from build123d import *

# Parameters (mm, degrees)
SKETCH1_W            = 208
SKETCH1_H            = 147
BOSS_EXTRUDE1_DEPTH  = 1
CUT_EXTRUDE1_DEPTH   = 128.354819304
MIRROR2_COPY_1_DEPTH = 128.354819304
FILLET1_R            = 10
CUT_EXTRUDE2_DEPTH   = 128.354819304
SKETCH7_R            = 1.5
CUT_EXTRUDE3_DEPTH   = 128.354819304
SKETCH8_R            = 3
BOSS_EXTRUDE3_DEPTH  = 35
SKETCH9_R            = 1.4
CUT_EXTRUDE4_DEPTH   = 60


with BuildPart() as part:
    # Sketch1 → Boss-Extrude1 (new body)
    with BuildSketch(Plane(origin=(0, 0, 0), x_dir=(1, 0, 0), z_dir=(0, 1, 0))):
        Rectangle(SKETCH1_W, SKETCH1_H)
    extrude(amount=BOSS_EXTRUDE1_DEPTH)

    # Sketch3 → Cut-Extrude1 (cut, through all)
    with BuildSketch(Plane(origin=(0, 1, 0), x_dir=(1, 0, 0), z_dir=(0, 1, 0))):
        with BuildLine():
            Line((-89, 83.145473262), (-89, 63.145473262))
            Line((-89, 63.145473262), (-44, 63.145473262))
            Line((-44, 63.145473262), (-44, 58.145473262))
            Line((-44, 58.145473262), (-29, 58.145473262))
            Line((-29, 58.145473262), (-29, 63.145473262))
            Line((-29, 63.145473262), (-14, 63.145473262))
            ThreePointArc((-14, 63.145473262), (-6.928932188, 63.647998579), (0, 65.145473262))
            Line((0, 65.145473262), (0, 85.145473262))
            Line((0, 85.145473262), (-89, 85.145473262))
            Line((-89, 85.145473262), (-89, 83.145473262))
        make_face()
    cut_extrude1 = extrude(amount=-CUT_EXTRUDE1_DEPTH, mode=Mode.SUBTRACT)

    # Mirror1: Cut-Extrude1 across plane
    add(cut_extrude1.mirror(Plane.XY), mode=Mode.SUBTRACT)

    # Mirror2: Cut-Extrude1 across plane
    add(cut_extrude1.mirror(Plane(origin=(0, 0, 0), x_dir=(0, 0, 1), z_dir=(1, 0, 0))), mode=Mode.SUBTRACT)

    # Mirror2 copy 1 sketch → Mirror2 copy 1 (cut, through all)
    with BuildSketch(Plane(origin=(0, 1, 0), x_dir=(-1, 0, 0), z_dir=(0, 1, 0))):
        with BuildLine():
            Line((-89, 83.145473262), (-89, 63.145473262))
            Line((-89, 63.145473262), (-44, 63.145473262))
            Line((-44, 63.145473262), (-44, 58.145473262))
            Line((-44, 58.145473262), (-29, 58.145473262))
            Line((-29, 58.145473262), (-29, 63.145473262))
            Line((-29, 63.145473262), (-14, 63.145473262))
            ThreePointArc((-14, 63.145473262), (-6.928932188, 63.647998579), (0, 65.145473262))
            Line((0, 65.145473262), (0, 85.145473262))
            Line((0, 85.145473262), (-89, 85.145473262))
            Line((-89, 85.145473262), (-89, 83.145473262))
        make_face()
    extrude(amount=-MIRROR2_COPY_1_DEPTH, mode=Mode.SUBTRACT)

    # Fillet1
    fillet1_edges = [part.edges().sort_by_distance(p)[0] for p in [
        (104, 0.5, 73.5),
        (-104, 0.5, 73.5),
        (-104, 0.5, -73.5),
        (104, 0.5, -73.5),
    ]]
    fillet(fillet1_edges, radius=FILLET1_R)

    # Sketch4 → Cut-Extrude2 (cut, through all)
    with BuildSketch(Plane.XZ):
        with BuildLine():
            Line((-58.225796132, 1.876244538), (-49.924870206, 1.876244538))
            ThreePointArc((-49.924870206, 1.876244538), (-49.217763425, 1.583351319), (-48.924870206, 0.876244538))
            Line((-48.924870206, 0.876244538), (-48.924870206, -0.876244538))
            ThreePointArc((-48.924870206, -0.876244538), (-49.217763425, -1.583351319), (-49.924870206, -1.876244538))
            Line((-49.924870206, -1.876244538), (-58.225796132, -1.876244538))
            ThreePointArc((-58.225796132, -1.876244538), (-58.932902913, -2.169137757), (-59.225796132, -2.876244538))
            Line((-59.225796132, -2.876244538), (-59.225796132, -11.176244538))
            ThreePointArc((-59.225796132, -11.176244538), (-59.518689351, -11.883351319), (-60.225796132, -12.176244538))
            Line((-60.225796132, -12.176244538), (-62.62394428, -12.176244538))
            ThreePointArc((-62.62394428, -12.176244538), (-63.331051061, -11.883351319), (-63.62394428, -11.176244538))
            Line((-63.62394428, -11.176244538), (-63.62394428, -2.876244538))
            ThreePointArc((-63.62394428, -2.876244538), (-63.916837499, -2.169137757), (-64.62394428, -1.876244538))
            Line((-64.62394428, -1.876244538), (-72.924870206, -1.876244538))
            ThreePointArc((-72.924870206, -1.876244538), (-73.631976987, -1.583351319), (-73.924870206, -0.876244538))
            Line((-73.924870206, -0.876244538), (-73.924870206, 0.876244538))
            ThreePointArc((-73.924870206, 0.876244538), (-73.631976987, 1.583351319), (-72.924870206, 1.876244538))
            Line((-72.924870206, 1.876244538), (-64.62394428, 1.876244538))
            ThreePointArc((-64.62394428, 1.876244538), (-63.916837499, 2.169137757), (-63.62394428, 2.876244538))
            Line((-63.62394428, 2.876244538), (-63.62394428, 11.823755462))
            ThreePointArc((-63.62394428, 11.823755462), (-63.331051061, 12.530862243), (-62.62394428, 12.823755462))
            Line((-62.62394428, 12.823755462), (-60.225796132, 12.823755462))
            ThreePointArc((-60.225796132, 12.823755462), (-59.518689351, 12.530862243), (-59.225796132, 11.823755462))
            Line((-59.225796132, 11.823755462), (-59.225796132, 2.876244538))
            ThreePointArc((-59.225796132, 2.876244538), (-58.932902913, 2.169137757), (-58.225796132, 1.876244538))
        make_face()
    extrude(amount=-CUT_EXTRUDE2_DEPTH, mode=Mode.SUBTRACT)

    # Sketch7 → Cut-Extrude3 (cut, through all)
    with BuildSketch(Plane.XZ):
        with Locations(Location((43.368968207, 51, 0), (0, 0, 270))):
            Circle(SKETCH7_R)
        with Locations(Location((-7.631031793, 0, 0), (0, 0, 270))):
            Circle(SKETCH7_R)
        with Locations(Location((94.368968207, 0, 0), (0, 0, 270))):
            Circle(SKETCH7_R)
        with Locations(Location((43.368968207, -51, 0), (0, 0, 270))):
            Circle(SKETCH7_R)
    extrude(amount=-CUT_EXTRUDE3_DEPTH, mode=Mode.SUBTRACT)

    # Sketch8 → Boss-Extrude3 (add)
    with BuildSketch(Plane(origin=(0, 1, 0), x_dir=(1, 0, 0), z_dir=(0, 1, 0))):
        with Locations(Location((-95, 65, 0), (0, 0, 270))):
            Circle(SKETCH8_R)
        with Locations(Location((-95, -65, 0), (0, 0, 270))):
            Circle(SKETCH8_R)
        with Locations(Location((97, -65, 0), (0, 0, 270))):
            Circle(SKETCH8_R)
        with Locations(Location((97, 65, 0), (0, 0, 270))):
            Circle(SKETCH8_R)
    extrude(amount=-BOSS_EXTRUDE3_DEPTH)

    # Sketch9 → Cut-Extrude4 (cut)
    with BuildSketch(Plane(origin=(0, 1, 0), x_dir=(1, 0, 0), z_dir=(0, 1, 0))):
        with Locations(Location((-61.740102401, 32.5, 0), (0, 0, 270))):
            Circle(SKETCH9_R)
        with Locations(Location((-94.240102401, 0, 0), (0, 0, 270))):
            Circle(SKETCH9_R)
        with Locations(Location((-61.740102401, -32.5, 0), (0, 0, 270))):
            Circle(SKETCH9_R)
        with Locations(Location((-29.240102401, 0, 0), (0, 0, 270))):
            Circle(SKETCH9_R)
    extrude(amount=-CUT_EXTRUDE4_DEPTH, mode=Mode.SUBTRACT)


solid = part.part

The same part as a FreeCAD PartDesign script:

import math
import FreeCAD as App
import Part
import Sketcher
from FreeCAD import Vector
Q = App.Units.Quantity


def edges_at(feature, points):
    """Names of the edges that pass closest to the given points."""
    edges = feature.Shape.Edges
    near = lambda p: min(range(len(edges)), key=lambda i: edges[i].distToShape(Part.Vertex(*p))[0])
    return sorted({f"Edge{near(p) + 1}" for p in points})


def add_polygon(sketch, points):
    """Adds a closed chain of lines whose ends are joined by coincident constraints."""
    first, n = sketch.GeometryCount, len(points)
    for a, b in zip(points, points[1:] + points[:1]):
        sketch.addGeometry(Part.LineSegment(App.Vector(*a, 0), App.Vector(*b, 0)), False)
    for i in range(n):
        sketch.addConstraint(Sketcher.Constraint("Coincident", first + i, 2, first + (i + 1) % n, 1))

doc = App.newDocument("Part")
body = doc.addObject("PartDesign::Body", "Body")

# Sketch on XZ plane
sketch1 = doc.addObject("Sketcher::SketchObject", "Sketch")
body.addObject(sketch1)
sketch1.AttachmentSupport = (doc.XZ_Plane, [""])
sketch1.MapMode = "FlatFace"
add_polygon(sketch1, [(-104, -74), (-104, 74), (104, 74), (104, -74)])  # lines 0-3
sketch1.addConstraint(Sketcher.Constraint("Vertical", 0))
sketch1.addConstraint(Sketcher.Constraint("Horizontal", 1))
sketch1.addConstraint(Sketcher.Constraint("Vertical", 2))
sketch1.addConstraint(Sketcher.Constraint("Horizontal", 3))
sketch1.addConstraint(Sketcher.Constraint("Symmetric", 0, 2, 2, 2, -1, 1))
sketch1.addConstraint(Sketcher.Constraint("DistanceX", 1, 1, 1, 2, Q("208 mm")))
sketch1.addConstraint(Sketcher.Constraint("DistanceY", 0, 1, 0, 2, Q("147 mm")))
pad1 = doc.addObject("PartDesign::Pad", "Pad")
body.addObject(pad1)
pad1.Profile = sketch1
pad1.Length = 1
pad1.Reversed = True

# Sketch on XZ plane
sketch2 = doc.addObject("Sketcher::SketchObject", "Sketch001")
body.addObject(sketch2)
sketch2.AttachmentSupport = (doc.XZ_Plane, [""])
sketch2.MapMode = "FlatFace"
sketch2.AttachmentOffset = App.Placement(Vector(0, 0, -1), App.Rotation())
sketch2.addGeometry(Part.LineSegment(Vector(-89, -63, 0), Vector(-44, -63, 0)), False)
sketch2.addGeometry(Part.LineSegment(Vector(-44, -63, 0), Vector(-44, -58, 0)), False)
sketch2.addGeometry(Part.LineSegment(Vector(-44, -58, 0), Vector(-29, -58, 0)), False)
sketch2.addGeometry(Part.LineSegment(Vector(-29, -58, 0), Vector(-29, -63, 0)), False)
sketch2.addGeometry(Part.LineSegment(Vector(-29, -63, 0), Vector(-14, -63, 0)), False)
sketch2.addGeometry(Part.ArcOfCircle(Part.Circle(Vector(-14, -113, 0), Vector(0, 0, 1), 50), math.radians(73.74), math.radians(90)), False)
sketch2.addGeometry(Part.LineSegment(Vector(0, -65, 0), Vector(0, -85, 0)), False)
sketch2.addGeometry(Part.LineSegment(Vector(0, -85, 0), Vector(-89, -85, 0)), False)
sketch2.addGeometry(Part.LineSegment(Vector(-89, -85, 0), Vector(-89, -63, 0)), False)
sketch2.addConstraint(Sketcher.Constraint("Coincident", 0, 2, 1, 1))
sketch2.addConstraint(Sketcher.Constraint("Coincident", 1, 2, 2, 1))
sketch2.addConstraint(Sketcher.Constraint("Coincident", 2, 2, 3, 1))
sketch2.addConstraint(Sketcher.Constraint("Coincident", 3, 2, 4, 1))
sketch2.addConstraint(Sketcher.Constraint("Tangent", 4, 2, 5, 2))
sketch2.addConstraint(Sketcher.Constraint("Coincident", 5, 1, 6, 1))
sketch2.addConstraint(Sketcher.Constraint("Coincident", 6, 2, 7, 1))
sketch2.addConstraint(Sketcher.Constraint("Coincident", 7, 2, 8, 1))
sketch2.addConstraint(Sketcher.Constraint("Coincident", 8, 2, 0, 1))
sketch2.addConstraint(Sketcher.Constraint("Horizontal", 0))
sketch2.addConstraint(Sketcher.Constraint("Vertical", 1))
sketch2.addConstraint(Sketcher.Constraint("Horizontal", 2))
sketch2.addConstraint(Sketcher.Constraint("Vertical", 3))
sketch2.addConstraint(Sketcher.Constraint("Horizontal", 4))
sketch2.addConstraint(Sketcher.Constraint("Vertical", 6))
sketch2.addConstraint(Sketcher.Constraint("Horizontal", 7))
sketch2.addConstraint(Sketcher.Constraint("Vertical", 8))
sketch2.addConstraint(Sketcher.Constraint("PointOnObject", 5, 1, -2))
sketch2.addConstraint(Sketcher.Constraint("Horizontal", 0, 2, 3, 2))
sketch2.addConstraint(Sketcher.Constraint("Equal", 2, 4))
sketch2.addConstraint(Sketcher.Constraint("Radius", 5, Q("50 mm")))
sketch2.addConstraint(Sketcher.Constraint("DistanceX", 0, 1, 0, 2, Q("45 mm")))
sketch2.addConstraint(Sketcher.Constraint("DistanceX", 2, 1, 2, 2, Q("15 mm")))
sketch2.addConstraint(Sketcher.Constraint("DistanceX", 7, 2, 7, 1, Q("89 mm")))
sketch2.addConstraint(Sketcher.Constraint("DistanceY", 1, 1, 1, 2, Q("5 mm")))
sketch2.addConstraint(Sketcher.Constraint("DistanceY", 6, 2, 6, 1, Q("20 mm")))
sketch2.addConstraint(Sketcher.Constraint("DistanceY", 5, 3, -1, 1, Q("113.145473 mm")))
pocket1 = doc.addObject("PartDesign::Pocket", "Pocket")
body.addObject(pocket1)
pocket1.Profile = sketch2
pocket1.Type = "ThroughAll"
pocket1.Reversed = True
doc.recompute()

mirrored = doc.addObject("PartDesign::Mirrored", "Mirrored")
body.addObject(mirrored)
mirrored.Originals = [pocket1]
mirrored.MirrorPlane = (doc.XY_Plane, [""])
body.Tip = mirrored
doc.recompute()

mirrored2 = doc.addObject("PartDesign::Mirrored", "Mirrored001")
body.addObject(mirrored2)
mirrored2.Originals = [pocket1]
mirrored2.MirrorPlane = (doc.YZ_Plane, [""])
body.Tip = mirrored2

# Sketch on XZ plane
sketch3 = doc.addObject("Sketcher::SketchObject", "Sketch002")
body.addObject(sketch3)
sketch3.AttachmentSupport = (doc.XZ_Plane, [""])
sketch3.MapMode = "FlatFace"
sketch3.AttachmentOffset = App.Placement(Vector(0, 0, -1), App.Rotation())
sketch3.addGeometry(Part.LineSegment(Vector(89, 63, 0), Vector(44, 63, 0)), False)
sketch3.addGeometry(Part.LineSegment(Vector(44, 63, 0), Vector(44, 58, 0)), False)
sketch3.addGeometry(Part.LineSegment(Vector(44, 58, 0), Vector(29, 58, 0)), False)
sketch3.addGeometry(Part.LineSegment(Vector(29, 58, 0), Vector(29, 63, 0)), False)
sketch3.addGeometry(Part.LineSegment(Vector(29, 63, 0), Vector(14, 63, 0)), False)
sketch3.addGeometry(Part.ArcOfCircle(Part.Circle(Vector(14, 113, 0), Vector(0, 0, 1), 50), math.radians(-106.26), math.radians(-90)), False)
sketch3.addGeometry(Part.LineSegment(Vector(0, 65, 0), Vector(0, 85, 0)), False)
sketch3.addGeometry(Part.LineSegment(Vector(0, 85, 0), Vector(89, 85, 0)), False)
sketch3.addGeometry(Part.LineSegment(Vector(89, 85, 0), Vector(89, 63, 0)), False)
sketch3.addConstraint(Sketcher.Constraint("Coincident", 0, 2, 1, 1))
sketch3.addConstraint(Sketcher.Constraint("Coincident", 1, 2, 2, 1))
sketch3.addConstraint(Sketcher.Constraint("Coincident", 2, 2, 3, 1))
sketch3.addConstraint(Sketcher.Constraint("Coincident", 3, 2, 4, 1))
sketch3.addConstraint(Sketcher.Constraint("Tangent", 4, 2, 5, 2))
sketch3.addConstraint(Sketcher.Constraint("Coincident", 5, 1, 6, 1))
sketch3.addConstraint(Sketcher.Constraint("Coincident", 6, 2, 7, 1))
sketch3.addConstraint(Sketcher.Constraint("Coincident", 7, 2, 8, 1))
sketch3.addConstraint(Sketcher.Constraint("Coincident", 8, 2, 0, 1))
sketch3.addConstraint(Sketcher.Constraint("Horizontal", 0))
sketch3.addConstraint(Sketcher.Constraint("Vertical", 1))
sketch3.addConstraint(Sketcher.Constraint("Horizontal", 2))
sketch3.addConstraint(Sketcher.Constraint("Vertical", 3))
sketch3.addConstraint(Sketcher.Constraint("Horizontal", 4))
sketch3.addConstraint(Sketcher.Constraint("Vertical", 6))
sketch3.addConstraint(Sketcher.Constraint("Horizontal", 7))
sketch3.addConstraint(Sketcher.Constraint("Vertical", 8))
sketch3.addConstraint(Sketcher.Constraint("PointOnObject", 5, 1, -2))
sketch3.addConstraint(Sketcher.Constraint("Horizontal", 0, 2, 3, 2))
sketch3.addConstraint(Sketcher.Constraint("Equal", 2, 4))
sketch3.addConstraint(Sketcher.Constraint("Radius", 5, Q("50 mm")))
sketch3.addConstraint(Sketcher.Constraint("DistanceX", 0, 2, 0, 1, Q("45 mm")))
sketch3.addConstraint(Sketcher.Constraint("DistanceX", 2, 2, 2, 1, Q("15 mm")))
sketch3.addConstraint(Sketcher.Constraint("DistanceX", 7, 1, 7, 2, Q("89 mm")))
sketch3.addConstraint(Sketcher.Constraint("DistanceY", 1, 2, 1, 1, Q("5 mm")))
sketch3.addConstraint(Sketcher.Constraint("DistanceY", 6, 1, 6, 2, Q("20 mm")))
sketch3.addConstraint(Sketcher.Constraint("DistanceY", -1, 1, 5, 3, Q("113.145473 mm")))
pocket2 = doc.addObject("PartDesign::Pocket", "Pocket001")
body.addObject(pocket2)
pocket2.Profile = sketch3
pocket2.Type = "ThroughAll"
pocket2.Reversed = True
doc.recompute()

fillet = doc.addObject("PartDesign::Fillet", "Fillet")
body.addObject(fillet)
fillet.Base = (pocket2, edges_at(pocket2, [
    (104, 0.5, 73.5),
    (-104, 0.5, 73.5),
    (-104, 0.5, -73.5),
    (104, 0.5, -73.5),
]))
fillet.Radius = 10

# Sketch on XZ plane
sketch4 = doc.addObject("Sketcher::SketchObject", "Sketch003")
body.addObject(sketch4)
sketch4.AttachmentSupport = (doc.XZ_Plane, [""])
sketch4.MapMode = "FlatFace"
sketch4.addGeometry(Part.LineSegment(Vector(-49.9, 1.9, 0), Vector(-58.2, 1.9, 0)), False)
sketch4.addGeometry(Part.ArcOfCircle(Part.Circle(Vector(-58.2, 2.9, 0), Vector(0, 0, 1), 1), math.radians(-180), math.radians(-90)), False)
sketch4.addGeometry(Part.LineSegment(Vector(-59.2, 2.9, 0), Vector(-59.2, 11.8, 0)), False)
sketch4.addGeometry(Part.ArcOfCircle(Part.Circle(Vector(-60.2, 11.8, 0), Vector(0, 0, 1), 1), math.radians(0), math.radians(90)), False)
sketch4.addGeometry(Part.LineSegment(Vector(-60.2, 12.8, 0), Vector(-62.6, 12.8, 0)), False)
sketch4.addGeometry(Part.ArcOfCircle(Part.Circle(Vector(-62.6, 11.8, 0), Vector(0, 0, 1), 1), math.radians(90), math.radians(180)), False)
sketch4.addGeometry(Part.LineSegment(Vector(-63.6, 11.8, 0), Vector(-63.6, 2.9, 0)), False)
sketch4.addGeometry(Part.ArcOfCircle(Part.Circle(Vector(-64.6, 2.9, 0), Vector(0, 0, 1), 1), math.radians(-90), math.radians(0)), False)
sketch4.addGeometry(Part.LineSegment(Vector(-64.6, 1.9, 0), Vector(-72.9, 1.9, 0)), False)
sketch4.addGeometry(Part.ArcOfCircle(Part.Circle(Vector(-72.9, 0.9, 0), Vector(0, 0, 1), 1), math.radians(90), math.radians(180)), False)
sketch4.addGeometry(Part.LineSegment(Vector(-73.9, 0.9, 0), Vector(-73.9, -0.9, 0)), False)
sketch4.addGeometry(Part.ArcOfCircle(Part.Circle(Vector(-72.9, -0.9, 0), Vector(0, 0, 1), 1), math.radians(-180), math.radians(-90)), False)
sketch4.addGeometry(Part.LineSegment(Vector(-72.9, -1.9, 0), Vector(-64.6, -1.9, 0)), False)
sketch4.addGeometry(Part.ArcOfCircle(Part.Circle(Vector(-64.6, -2.9, 0), Vector(0, 0, 1), 1), math.radians(0), math.radians(90)), False)
sketch4.addGeometry(Part.LineSegment(Vector(-63.6, -2.9, 0), Vector(-63.6, -11.2, 0)), False)
sketch4.addGeometry(Part.ArcOfCircle(Part.Circle(Vector(-62.6, -11.2, 0), Vector(0, 0, 1), 1), math.radians(-180), math.radians(-90)), False)
sketch4.addGeometry(Part.LineSegment(Vector(-62.6, -12.2, 0), Vector(-60.2, -12.2, 0)), False)
sketch4.addGeometry(Part.ArcOfCircle(Part.Circle(Vector(-60.2, -11.2, 0), Vector(0, 0, 1), 1), math.radians(-90), math.radians(0)), False)
sketch4.addGeometry(Part.LineSegment(Vector(-59.2, -11.2, 0), Vector(-59.2, -2.9, 0)), False)
sketch4.addGeometry(Part.ArcOfCircle(Part.Circle(Vector(-58.2, -2.9, 0), Vector(0, 0, 1), 1), math.radians(90), math.radians(180)), False)
sketch4.addGeometry(Part.LineSegment(Vector(-58.2, -1.9, 0), Vector(-49.9, -1.9, 0)), False)
sketch4.addGeometry(Part.ArcOfCircle(Part.Circle(Vector(-49.9, -0.9, 0), Vector(0, 0, 1), 1), math.radians(-90), math.radians(0)), False)
sketch4.addGeometry(Part.LineSegment(Vector(-48.9, -0.9, 0), Vector(-48.9, 0.9, 0)), False)
sketch4.addGeometry(Part.ArcOfCircle(Part.Circle(Vector(-49.9, 0.9, 0), Vector(0, 0, 1), 1), math.radians(0), math.radians(90)), False)
sketch4.addConstraint(Sketcher.Constraint("Tangent", 0, 2, 1, 2))
sketch4.addConstraint(Sketcher.Constraint("Tangent", 1, 1, 2, 1))
sketch4.addConstraint(Sketcher.Constraint("Tangent", 2, 2, 3, 1))
sketch4.addConstraint(Sketcher.Constraint("Tangent", 3, 2, 4, 1))
sketch4.addConstraint(Sketcher.Constraint("Tangent", 4, 2, 5, 1))
sketch4.addConstraint(Sketcher.Constraint("Tangent", 5, 2, 6, 1))
sketch4.addConstraint(Sketcher.Constraint("Tangent", 6, 2, 7, 2))
sketch4.addConstraint(Sketcher.Constraint("Tangent", 7, 1, 8, 1))
sketch4.addConstraint(Sketcher.Constraint("Tangent", 8, 2, 9, 1))
sketch4.addConstraint(Sketcher.Constraint("Tangent", 9, 2, 10, 1))
sketch4.addConstraint(Sketcher.Constraint("Tangent", 10, 2, 11, 1))
sketch4.addConstraint(Sketcher.Constraint("Tangent", 11, 2, 12, 1))
sketch4.addConstraint(Sketcher.Constraint("Tangent", 12, 2, 13, 2))
sketch4.addConstraint(Sketcher.Constraint("Tangent", 13, 1, 14, 1))
sketch4.addConstraint(Sketcher.Constraint("Tangent", 14, 2, 15, 1))
sketch4.addConstraint(Sketcher.Constraint("Tangent", 15, 2, 16, 1))
sketch4.addConstraint(Sketcher.Constraint("Tangent", 16, 2, 17, 1))
sketch4.addConstraint(Sketcher.Constraint("Tangent", 17, 2, 18, 1))
sketch4.addConstraint(Sketcher.Constraint("Tangent", 18, 2, 19, 2))
sketch4.addConstraint(Sketcher.Constraint("Tangent", 19, 1, 20, 1))
sketch4.addConstraint(Sketcher.Constraint("Tangent", 20, 2, 21, 1))
sketch4.addConstraint(Sketcher.Constraint("Tangent", 21, 2, 22, 1))
sketch4.addConstraint(Sketcher.Constraint("Tangent", 22, 2, 23, 1))
sketch4.addConstraint(Sketcher.Constraint("Tangent", 23, 2, 0, 1))
sketch4.addConstraint(Sketcher.Constraint("Horizontal", 0))
sketch4.addConstraint(Sketcher.Constraint("Vertical", 2))
sketch4.addConstraint(Sketcher.Constraint("Horizontal", 4))
sketch4.addConstraint(Sketcher.Constraint("Vertical", 6))
sketch4.addConstraint(Sketcher.Constraint("Horizontal", 8))
sketch4.addConstraint(Sketcher.Constraint("Vertical", 10))
sketch4.addConstraint(Sketcher.Constraint("Horizontal", 12))
sketch4.addConstraint(Sketcher.Constraint("Vertical", 14))
sketch4.addConstraint(Sketcher.Constraint("Horizontal", 16))
sketch4.addConstraint(Sketcher.Constraint("Vertical", 18))
sketch4.addConstraint(Sketcher.Constraint("Horizontal", 20))
sketch4.addConstraint(Sketcher.Constraint("Vertical", 22))
sketch4.addConstraint(Sketcher.Constraint("Equal", 1, 3))
sketch4.addConstraint(Sketcher.Constraint("Equal", 3, 5))
sketch4.addConstraint(Sketcher.Constraint("Equal", 5, 7))
sketch4.addConstraint(Sketcher.Constraint("Equal", 7, 9))
sketch4.addConstraint(Sketcher.Constraint("Equal", 9, 11))
sketch4.addConstraint(Sketcher.Constraint("Equal", 11, 13))
sketch4.addConstraint(Sketcher.Constraint("Equal", 13, 15))
sketch4.addConstraint(Sketcher.Constraint("Equal", 15, 17))
sketch4.addConstraint(Sketcher.Constraint("Equal", 17, 19))
sketch4.addConstraint(Sketcher.Constraint("Equal", 19, 21))
sketch4.addConstraint(Sketcher.Constraint("Equal", 21, 23))
sketch4.addConstraint(Sketcher.Constraint("Symmetric", 7, 3, 13, 3, -1))
sketch4.addConstraint(Sketcher.Constraint("Symmetric", 1, 3, 19, 3, -1))
sketch4.addConstraint(Sketcher.Constraint("Horizontal", 1, 3, 7, 3))
sketch4.addConstraint(Sketcher.Constraint("Equal", 0, 8))
sketch4.addConstraint(Sketcher.Constraint("Radius", 1, Q("1 mm")))
sketch4.addConstraint(Sketcher.Constraint("DistanceY", 14, 2, 14, 1, Q("8.3 mm")))
sketch4.addConstraint(Sketcher.Constraint("DistanceY", 11, 3, 5, 3, Q("12.7 mm")))
sketch4.addConstraint(Sketcher.Constraint("DistanceX", 4, 2, 4, 1, Q("2.398148 mm")))
sketch4.addConstraint(Sketcher.Constraint("DistanceY", 2, 1, 2, 2, Q("8.947511 mm")))
sketch4.addConstraint(Sketcher.Constraint("DistanceX", 0, 2, 0, 1, Q("8.300926 mm")))
sketch4.addConstraint(Sketcher.Constraint("DistanceX", 9, 3, -1, 1, Q("72.92487 mm")))
pocket3 = doc.addObject("PartDesign::Pocket", "Pocket002")
body.addObject(pocket3)
pocket3.Profile = sketch4
pocket3.Type = "ThroughAll"

# Sketch on XZ plane
sketch5 = doc.addObject("Sketcher::SketchObject", "Sketch004")
body.addObject(sketch5)
sketch5.AttachmentSupport = (doc.XZ_Plane, [""])
sketch5.MapMode = "FlatFace"
sketch5.addGeometry(Part.Circle(Vector(43.4, 51, 0), Vector(0, 0, 1), 1.5), False)
sketch5.addGeometry(Part.Circle(Vector(-7.6, 0, 0), Vector(0, 0, 1), 1.5), False)
sketch5.addGeometry(Part.Circle(Vector(94.4, 0, 0), Vector(0, 0, 1), 1.5), False)
sketch5.addGeometry(Part.Circle(Vector(43.4, -51, 0), Vector(0, 0, 1), 1.5), False)
sketch5.addConstraint(Sketcher.Constraint("Equal", 0, 1))
sketch5.addConstraint(Sketcher.Constraint("Equal", 1, 2))
sketch5.addConstraint(Sketcher.Constraint("Equal", 2, 3))
sketch5.addConstraint(Sketcher.Constraint("Symmetric", 0, 3, 3, 3, -1))
sketch5.addConstraint(Sketcher.Constraint("PointOnObject", 1, 3, -1))
sketch5.addConstraint(Sketcher.Constraint("PointOnObject", 2, 3, -1))
sketch5.addConstraint(Sketcher.Constraint("Diameter", 0, Q("3 mm")))
sketch5.addConstraint(Sketcher.Constraint("DistanceY", -1, 1, 0, 3, Q("51 mm")))
sketch5.addConstraint(Sketcher.Constraint("DistanceX", 1, 3, 0, 3, Q("51 mm")))
sketch5.addConstraint(Sketcher.Constraint("DistanceX", 0, 3, 2, 3, Q("51 mm")))
sketch5.addConstraint(Sketcher.Constraint("DistanceX", -1, 1, 0, 3, Q("43.368968 mm")))
pocket4 = doc.addObject("PartDesign::Pocket", "Pocket003")
body.addObject(pocket4)
pocket4.Profile = sketch5
pocket4.Type = "ThroughAll"

# Sketch on XZ plane
sketch6 = doc.addObject("Sketcher::SketchObject", "Sketch005")
body.addObject(sketch6)
sketch6.AttachmentSupport = (doc.XZ_Plane, [""])
sketch6.MapMode = "FlatFace"
sketch6.AttachmentOffset = App.Placement(Vector(0, 0, -1), App.Rotation())
sketch6.addGeometry(Part.Circle(Vector(-95, -65, 0), Vector(0, 0, 1), 3), False)
sketch6.addGeometry(Part.Circle(Vector(-95, 65, 0), Vector(0, 0, 1), 3), False)
sketch6.addGeometry(Part.Circle(Vector(97, 65, 0), Vector(0, 0, 1), 3), False)
sketch6.addGeometry(Part.Circle(Vector(97, -65, 0), Vector(0, 0, 1), 3), False)
sketch6.addConstraint(Sketcher.Constraint("Equal", 0, 1))
sketch6.addConstraint(Sketcher.Constraint("Equal", 1, 2))
sketch6.addConstraint(Sketcher.Constraint("Equal", 2, 3))
sketch6.addConstraint(Sketcher.Constraint("Symmetric", 0, 3, 1, 3, -1))
sketch6.addConstraint(Sketcher.Constraint("Symmetric", 2, 3, 3, 3, -1))
sketch6.addConstraint(Sketcher.Constraint("Horizontal", 1, 3, 2, 3))
sketch6.addConstraint(Sketcher.Constraint("Diameter", 0, Q("6 mm")))
sketch6.addConstraint(Sketcher.Constraint("DistanceX", 0, 3, -1, 1, Q("95 mm")))
sketch6.addConstraint(Sketcher.Constraint("DistanceY", 0, 3, -1, 1, Q("65 mm")))
sketch6.addConstraint(Sketcher.Constraint("DistanceX", -1, 1, 2, 3, Q("97 mm")))
pad2 = doc.addObject("PartDesign::Pad", "Pad001")
body.addObject(pad2)
pad2.Profile = sketch6
pad2.Length = 35

# Sketch on XZ plane
sketch7 = doc.addObject("Sketcher::SketchObject", "Sketch006")
body.addObject(sketch7)
sketch7.AttachmentSupport = (doc.XZ_Plane, [""])
sketch7.MapMode = "FlatFace"
sketch7.AttachmentOffset = App.Placement(Vector(0, 0, -1), App.Rotation())
sketch7.addGeometry(Part.Circle(Vector(-61.7, -32.5, 0), Vector(0, 0, 1), 1.4), False)
sketch7.addGeometry(Part.Circle(Vector(-94.2, 0, 0), Vector(0, 0, 1), 1.4), False)
sketch7.addGeometry(Part.Circle(Vector(-61.7, 32.5, 0), Vector(0, 0, 1), 1.4), False)
sketch7.addGeometry(Part.Circle(Vector(-29.2, 0, 0), Vector(0, 0, 1), 1.4), False)
sketch7.addConstraint(Sketcher.Constraint("Equal", 0, 1))
sketch7.addConstraint(Sketcher.Constraint("Equal", 1, 2))
sketch7.addConstraint(Sketcher.Constraint("Equal", 2, 3))
sketch7.addConstraint(Sketcher.Constraint("Symmetric", 0, 3, 2, 3, -1))
sketch7.addConstraint(Sketcher.Constraint("PointOnObject", 1, 3, -1))
sketch7.addConstraint(Sketcher.Constraint("PointOnObject", 3, 3, -1))
sketch7.addConstraint(Sketcher.Constraint("Diameter", 0, Q("2.8 mm")))
sketch7.addConstraint(Sketcher.Constraint("DistanceY", 0, 3, 2, 3, Q("65 mm")))
sketch7.addConstraint(Sketcher.Constraint("DistanceX", 1, 3, 3, 3, Q("65 mm")))
sketch7.addConstraint(Sketcher.Constraint("DistanceX", 1, 3, 0, 3, Q("32.5 mm")))
sketch7.addConstraint(Sketcher.Constraint("DistanceX", 0, 3, -1, 1, Q("61.740102 mm")))
pocket5 = doc.addObject("PartDesign::Pocket", "Pocket004")
body.addObject(pocket5)
pocket5.Profile = sketch7
pocket5.Length = 60
pocket5.Reversed = True

doc.recompute()
